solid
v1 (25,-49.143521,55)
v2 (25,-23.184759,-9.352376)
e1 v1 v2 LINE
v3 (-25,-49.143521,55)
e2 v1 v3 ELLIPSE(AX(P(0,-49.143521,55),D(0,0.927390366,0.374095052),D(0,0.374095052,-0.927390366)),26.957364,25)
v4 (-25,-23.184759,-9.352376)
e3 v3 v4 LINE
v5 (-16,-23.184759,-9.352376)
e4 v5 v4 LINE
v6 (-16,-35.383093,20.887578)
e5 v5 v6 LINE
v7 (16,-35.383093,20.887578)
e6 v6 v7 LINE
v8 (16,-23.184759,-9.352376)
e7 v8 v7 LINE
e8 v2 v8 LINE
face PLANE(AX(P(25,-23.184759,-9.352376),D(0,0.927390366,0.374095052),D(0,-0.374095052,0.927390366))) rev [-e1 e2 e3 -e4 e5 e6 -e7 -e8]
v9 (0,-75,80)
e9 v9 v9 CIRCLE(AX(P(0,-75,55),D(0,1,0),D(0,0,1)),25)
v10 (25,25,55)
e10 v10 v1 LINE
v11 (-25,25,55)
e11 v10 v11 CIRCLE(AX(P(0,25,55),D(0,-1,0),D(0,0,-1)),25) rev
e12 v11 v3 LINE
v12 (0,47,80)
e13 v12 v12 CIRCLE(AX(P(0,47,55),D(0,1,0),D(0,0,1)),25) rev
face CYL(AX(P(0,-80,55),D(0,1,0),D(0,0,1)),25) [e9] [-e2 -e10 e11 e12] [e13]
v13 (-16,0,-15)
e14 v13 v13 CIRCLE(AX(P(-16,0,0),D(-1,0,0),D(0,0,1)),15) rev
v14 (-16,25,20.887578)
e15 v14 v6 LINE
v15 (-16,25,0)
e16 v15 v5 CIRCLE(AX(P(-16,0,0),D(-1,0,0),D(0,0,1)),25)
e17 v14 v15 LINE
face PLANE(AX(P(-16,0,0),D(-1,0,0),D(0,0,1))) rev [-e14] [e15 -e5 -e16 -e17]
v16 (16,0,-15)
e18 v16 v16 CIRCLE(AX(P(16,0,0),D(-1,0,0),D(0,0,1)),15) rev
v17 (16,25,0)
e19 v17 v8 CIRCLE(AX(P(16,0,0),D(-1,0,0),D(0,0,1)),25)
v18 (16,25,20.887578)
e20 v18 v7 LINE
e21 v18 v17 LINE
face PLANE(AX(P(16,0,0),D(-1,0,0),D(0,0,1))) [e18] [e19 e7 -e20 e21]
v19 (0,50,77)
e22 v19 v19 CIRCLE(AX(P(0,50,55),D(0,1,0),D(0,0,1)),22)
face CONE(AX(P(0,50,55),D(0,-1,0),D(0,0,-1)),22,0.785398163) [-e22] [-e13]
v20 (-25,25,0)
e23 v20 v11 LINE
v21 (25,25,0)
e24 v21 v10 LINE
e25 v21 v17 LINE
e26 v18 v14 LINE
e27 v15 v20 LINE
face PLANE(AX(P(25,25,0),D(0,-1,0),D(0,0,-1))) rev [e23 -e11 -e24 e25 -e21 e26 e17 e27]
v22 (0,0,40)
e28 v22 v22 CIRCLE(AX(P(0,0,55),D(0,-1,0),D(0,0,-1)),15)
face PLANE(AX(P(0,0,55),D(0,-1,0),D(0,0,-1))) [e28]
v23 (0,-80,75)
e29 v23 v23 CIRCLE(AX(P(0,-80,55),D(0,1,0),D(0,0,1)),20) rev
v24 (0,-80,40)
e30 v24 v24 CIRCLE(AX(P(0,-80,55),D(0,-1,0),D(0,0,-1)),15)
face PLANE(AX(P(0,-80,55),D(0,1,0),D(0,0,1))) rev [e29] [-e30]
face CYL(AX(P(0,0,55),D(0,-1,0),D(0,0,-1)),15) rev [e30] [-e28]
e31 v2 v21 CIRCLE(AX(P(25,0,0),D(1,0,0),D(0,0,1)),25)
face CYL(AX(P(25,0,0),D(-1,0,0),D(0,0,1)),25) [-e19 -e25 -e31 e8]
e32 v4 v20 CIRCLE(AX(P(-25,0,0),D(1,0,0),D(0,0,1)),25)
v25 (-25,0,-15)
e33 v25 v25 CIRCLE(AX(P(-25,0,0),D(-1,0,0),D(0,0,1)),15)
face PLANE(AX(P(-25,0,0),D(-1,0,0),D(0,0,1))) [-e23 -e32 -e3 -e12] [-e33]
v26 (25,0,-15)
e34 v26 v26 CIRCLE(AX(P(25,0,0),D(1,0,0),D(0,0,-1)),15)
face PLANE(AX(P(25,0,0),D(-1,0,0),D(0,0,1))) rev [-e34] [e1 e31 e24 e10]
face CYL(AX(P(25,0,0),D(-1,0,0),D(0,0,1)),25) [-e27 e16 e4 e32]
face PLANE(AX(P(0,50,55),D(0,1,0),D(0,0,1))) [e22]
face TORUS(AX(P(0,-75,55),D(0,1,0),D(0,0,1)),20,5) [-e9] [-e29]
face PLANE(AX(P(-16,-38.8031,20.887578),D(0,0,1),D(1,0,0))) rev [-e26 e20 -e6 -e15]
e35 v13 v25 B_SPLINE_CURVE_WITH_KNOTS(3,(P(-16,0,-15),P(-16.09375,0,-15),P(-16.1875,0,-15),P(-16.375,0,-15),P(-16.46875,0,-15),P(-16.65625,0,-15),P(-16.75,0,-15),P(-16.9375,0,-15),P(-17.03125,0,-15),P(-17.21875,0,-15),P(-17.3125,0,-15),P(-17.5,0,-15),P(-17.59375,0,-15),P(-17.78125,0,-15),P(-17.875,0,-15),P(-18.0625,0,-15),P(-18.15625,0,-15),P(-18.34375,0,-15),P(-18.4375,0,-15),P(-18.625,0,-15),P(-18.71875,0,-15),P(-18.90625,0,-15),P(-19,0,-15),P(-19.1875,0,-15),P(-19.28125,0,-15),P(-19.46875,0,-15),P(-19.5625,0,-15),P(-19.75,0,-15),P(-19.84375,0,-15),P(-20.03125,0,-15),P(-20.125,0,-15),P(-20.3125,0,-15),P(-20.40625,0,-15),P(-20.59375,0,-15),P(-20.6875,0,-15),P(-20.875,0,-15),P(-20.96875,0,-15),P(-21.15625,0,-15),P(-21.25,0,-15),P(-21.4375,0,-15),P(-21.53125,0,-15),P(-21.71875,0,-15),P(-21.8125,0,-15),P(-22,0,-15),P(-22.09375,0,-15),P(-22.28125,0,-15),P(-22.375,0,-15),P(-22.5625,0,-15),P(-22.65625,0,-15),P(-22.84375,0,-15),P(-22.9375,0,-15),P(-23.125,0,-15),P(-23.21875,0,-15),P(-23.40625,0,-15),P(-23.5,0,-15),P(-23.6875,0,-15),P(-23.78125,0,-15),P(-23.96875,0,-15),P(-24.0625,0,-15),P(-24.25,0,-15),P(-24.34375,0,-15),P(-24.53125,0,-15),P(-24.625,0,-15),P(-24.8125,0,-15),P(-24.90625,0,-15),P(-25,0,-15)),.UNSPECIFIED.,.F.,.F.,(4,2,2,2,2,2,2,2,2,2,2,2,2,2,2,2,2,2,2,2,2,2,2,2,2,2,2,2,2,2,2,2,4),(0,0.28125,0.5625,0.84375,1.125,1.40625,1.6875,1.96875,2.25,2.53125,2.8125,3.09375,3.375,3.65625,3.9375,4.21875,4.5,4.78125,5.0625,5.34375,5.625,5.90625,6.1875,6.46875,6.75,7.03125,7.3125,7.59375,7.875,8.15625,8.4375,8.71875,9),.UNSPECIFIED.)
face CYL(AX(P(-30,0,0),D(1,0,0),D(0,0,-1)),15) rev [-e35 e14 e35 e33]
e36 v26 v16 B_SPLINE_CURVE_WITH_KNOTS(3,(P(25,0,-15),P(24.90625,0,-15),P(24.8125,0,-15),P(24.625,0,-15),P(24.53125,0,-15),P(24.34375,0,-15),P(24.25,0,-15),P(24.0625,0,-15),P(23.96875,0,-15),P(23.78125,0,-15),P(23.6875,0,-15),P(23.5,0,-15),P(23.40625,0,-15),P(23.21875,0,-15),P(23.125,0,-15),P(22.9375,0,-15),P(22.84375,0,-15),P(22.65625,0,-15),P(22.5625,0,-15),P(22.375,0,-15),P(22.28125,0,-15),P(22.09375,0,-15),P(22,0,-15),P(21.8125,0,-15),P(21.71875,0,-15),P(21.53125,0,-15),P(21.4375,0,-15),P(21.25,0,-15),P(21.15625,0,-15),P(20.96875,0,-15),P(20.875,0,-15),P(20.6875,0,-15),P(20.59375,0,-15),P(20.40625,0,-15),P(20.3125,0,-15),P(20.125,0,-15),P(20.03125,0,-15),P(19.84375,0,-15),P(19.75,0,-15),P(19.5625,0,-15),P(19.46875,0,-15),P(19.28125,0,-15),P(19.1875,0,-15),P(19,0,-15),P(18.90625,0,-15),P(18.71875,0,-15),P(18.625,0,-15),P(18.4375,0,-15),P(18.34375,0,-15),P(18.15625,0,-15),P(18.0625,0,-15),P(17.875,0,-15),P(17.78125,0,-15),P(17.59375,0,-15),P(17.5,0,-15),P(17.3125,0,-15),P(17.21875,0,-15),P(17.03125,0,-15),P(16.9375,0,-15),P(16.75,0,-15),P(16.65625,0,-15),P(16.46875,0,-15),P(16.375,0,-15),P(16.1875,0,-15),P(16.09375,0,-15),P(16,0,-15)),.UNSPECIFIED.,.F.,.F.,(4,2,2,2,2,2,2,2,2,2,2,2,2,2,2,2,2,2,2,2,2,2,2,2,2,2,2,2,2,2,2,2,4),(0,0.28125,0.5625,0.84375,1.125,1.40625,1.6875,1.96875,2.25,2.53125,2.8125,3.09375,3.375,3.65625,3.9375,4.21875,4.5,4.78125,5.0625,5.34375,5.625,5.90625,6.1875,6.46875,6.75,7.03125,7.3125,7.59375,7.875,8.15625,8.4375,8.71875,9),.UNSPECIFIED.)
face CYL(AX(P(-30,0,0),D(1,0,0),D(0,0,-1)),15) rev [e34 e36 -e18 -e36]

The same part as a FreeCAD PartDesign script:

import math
import FreeCAD as App
import Part
import Sketcher
from FreeCAD import Vector
Q = App.Units.Quantity


def edges_at(feature, points):
    """Names of the edges that pass closest to the given points."""
    edges = feature.Shape.Edges
    near = lambda p: min(range(len(edges)), key=lambda i: edges[i].distToShape(Part.Vertex(*p))[0])
    return sorted({f"Edge{near(p) + 1}" for p in points})

doc = App.newDocument("Part")
body = doc.addObject("PartDesign::Body", "Body")

# Sketch on YZ plane
sketch1 = body.newObject("Sketcher::SketchObject", "Sketch")
sketch1.AttachmentSupport = (doc.getObject("YZ_Plane"), [""])
sketch1.MapMode = "FlatFace"
sketch1.addGeometry([
    Part.LineSegment(Vector(25, 0, 0), Vector(25, 55, 0)),
    Part.LineSegment(Vector(25, 55, 0), Vector(-49, 55, 0)),
    Part.LineSegment(Vector(-49, 55, 0), Vector(-23, -9, 0)),
    Part.ArcOfCircle(Part.Circle(Vector(0, 0, 0), Vector(0, 0, 1), 25), math.radians(-158), math.radians(0)),
], False)
sketch1.addConstraint([
    Sketcher.Constraint("Coincident", 0, 2, 1, 1),
    Sketcher.Constraint("Coincident", 1, 2, 2, 1),
    Sketcher.Constraint("Tangent", 2, 2, 3, 1),
    Sketcher.Constraint("Tangent", 3, 2, 0, 1),
    Sketcher.Constraint("Vertical", 0),
    Sketcher.Constraint("Horizontal", 1),
    Sketcher.Constraint("Coincident", 3, 3, -1, 1),
    Sketcher.Constraint("Radius", 3, Q("25 mm")),
    Sketcher.Constraint("DistanceY", 0, 1, 0, 2, Q("55 mm")),
    Sketcher.Constraint("DistanceX", 1, 2, 1, 1, Q("74.143521 mm")),
])
pad1 = body.newObject("PartDesign::Pad", "Pad")
pad1.Profile = sketch1
pad1.Length = 50
pad1.Midplane = True

# Sketch on XZ plane
sketch2 = body.newObject("Sketcher::SketchObject", "Sketch001")
sketch2.AttachmentSupport = (doc.getObject("XZ_Plane"), [""])
sketch2.MapMode = "FlatFace"
sketch2.addGeometry(Part.Circle(Vector(0, 55, 0), Vector(0, 0, 1), 25), False)
sketch2.addConstraint([
    Sketcher.Constraint("PointOnObject", 0, 3, -2),
    Sketcher.Constraint("Diameter", 0, Q("50 mm")),
    Sketcher.Constraint("DistanceY", -1, 1, 0, 3, Q("55 mm")),
])
pad2 = body.newObject("PartDesign::Pad", "Pad001")
pad2.Profile = sketch2
pad2.Length = 80
doc.recompute()

fillet = body.newObject("PartDesign::Fillet", "Fillet")
fillet.Base = (pad2, edges_at(pad2, [(0, -80, 30)]))
fillet.Radius = 5

# Sketch on XZ plane
sketch3 = body.newObject("Sketcher::SketchObject", "Sketch002")
sketch3.AttachmentSupport = (doc.getObject("XZ_Plane"), [""])
sketch3.MapMode = "FlatFace"
sketch3.AttachmentOffset = App.Placement(Vector(0, 0, 80), App.Rotation())
sketch3.addGeometry(Part.Circle(Vector(0, 55, 0), Vector(0, 0, 1), 15), False)
sketch3.addConstraint([
    Sketcher.Constraint("PointOnObject", 0, 3, -2),
    Sketcher.Constraint("Diameter", 0, Q("30 mm")),
    Sketcher.Constraint("DistanceY", -1, 1, 0, 3, Q("55 mm")),
])
pocket1 = body.newObject("PartDesign::Pocket", "Pocket")
pocket1.Profile = sketch3
pocket1.Length = 80

# Sketch on XZ plane
sketch4 = body.newObject("Sketcher::SketchObject", "Sketch003")
sketch4.AttachmentSupport = (doc.getObject("XZ_Plane"), [""])
sketch4.MapMode = "FlatFace"
sketch4.AttachmentOffset = App.Placement(Vector(0, 0, -25), App.Rotation())
sketch4.addGeometry(Part.Circle(Vector(0, 55, 0), Vector(0, 0, 1), 25), False)
sketch4.addConstraint([
    Sketcher.Constraint("PointOnObject", 0, 3, -2),
    Sketcher.Constraint("Diameter", 0, Q("50 mm")),
    Sketcher.Constraint("DistanceY", -1, 1, 0, 3, Q("55 mm")),
])
pad3 = body.newObject("PartDesign::Pad", "Pad002")
pad3.Profile = sketch4
pad3.Length = 50
pad3.Midplane = True
doc.recompute()

chamfer = body.newObject("PartDesign::Chamfer", "Chamfer")
chamfer.Base = (pad3, edges_at(pad3, [(0, 50, 30)]))
chamfer.Size = 3

# Sketch on YZ plane
sketch5 = body.newObject("Sketcher::SketchObject", "Sketch004")
sketch5.AttachmentSupport = (doc.getObject("YZ_Plane"), [""])
sketch5.MapMode = "FlatFace"
sketch5.AttachmentOffset = App.Placement(Vector(0, 0, 25), App.Rotation())
sketch5.addGeometry(Part.Circle(Vector(0, 0, 0), Vector(0, 0, 1), 15), False)
sketch5.addConstraint([
    Sketcher.Constraint("Coincident", 0, 3, -1, 1),
    Sketcher.Constraint("Diameter", 0, Q("30 mm")),
])
pocket2 = body.newObject("PartDesign::Pocket", "Pocket001")
pocket2.Profile = sketch5
pocket2.Length = 55

# Sketch on YZ plane
sketch6 = body.newObject("Sketcher::SketchObject", "Sketch005")
sketch6.AttachmentSupport = (doc.getObject("YZ_Plane"), [""])
sketch6.MapMode = "FlatFace"
sketch6.addGeometry([
    Part.LineSegment(Vector(34, 21, 0), Vector(-39, 21, 0)),
    Part.LineSegment(Vector(-39, 21, 0), Vector(-39, -30, 0)),
    Part.LineSegment(Vector(-39, -30, 0), Vector(34, -30, 0)),
    Part.LineSegment(Vector(34, -30, 0), Vector(34, 21, 0)),
], False)
sketch6.addConstraint([
    Sketcher.Constraint("Coincident", 0, 2, 1, 1),
    Sketcher.Constraint("Coincident", 1, 2, 2, 1),
    Sketcher.Constraint("Coincident", 2, 2, 3, 1),
    Sketcher.Constraint("Coincident", 3, 2, 0, 1),
    Sketcher.Constraint("Horizontal", 0),
    Sketcher.Constraint("Vertical", 1),
    Sketcher.Constraint("Horizontal", 2),
    Sketcher.Constraint("Vertical", 3),
    Sketcher.Constraint("DistanceY", 1, 2, 1, 1, Q("51.322431 mm")),
    Sketcher.Constraint("DistanceX", 0, 2, -1, 1, Q("38.8031 mm")),
    Sketcher.Constraint("DistanceX", 0, 2, 0, 1, Q("72.336094 mm")),
    Sketcher.Constraint("DistanceY", -1, 1, 0, 2, Q("20.887578 mm")),
])
pocket3 = body.newObject("PartDesign::Pocket", "Pocket002")
pocket3.Profile = sketch6
pocket3.Length = 32
pocket3.Midplane = True

doc.recompute()
